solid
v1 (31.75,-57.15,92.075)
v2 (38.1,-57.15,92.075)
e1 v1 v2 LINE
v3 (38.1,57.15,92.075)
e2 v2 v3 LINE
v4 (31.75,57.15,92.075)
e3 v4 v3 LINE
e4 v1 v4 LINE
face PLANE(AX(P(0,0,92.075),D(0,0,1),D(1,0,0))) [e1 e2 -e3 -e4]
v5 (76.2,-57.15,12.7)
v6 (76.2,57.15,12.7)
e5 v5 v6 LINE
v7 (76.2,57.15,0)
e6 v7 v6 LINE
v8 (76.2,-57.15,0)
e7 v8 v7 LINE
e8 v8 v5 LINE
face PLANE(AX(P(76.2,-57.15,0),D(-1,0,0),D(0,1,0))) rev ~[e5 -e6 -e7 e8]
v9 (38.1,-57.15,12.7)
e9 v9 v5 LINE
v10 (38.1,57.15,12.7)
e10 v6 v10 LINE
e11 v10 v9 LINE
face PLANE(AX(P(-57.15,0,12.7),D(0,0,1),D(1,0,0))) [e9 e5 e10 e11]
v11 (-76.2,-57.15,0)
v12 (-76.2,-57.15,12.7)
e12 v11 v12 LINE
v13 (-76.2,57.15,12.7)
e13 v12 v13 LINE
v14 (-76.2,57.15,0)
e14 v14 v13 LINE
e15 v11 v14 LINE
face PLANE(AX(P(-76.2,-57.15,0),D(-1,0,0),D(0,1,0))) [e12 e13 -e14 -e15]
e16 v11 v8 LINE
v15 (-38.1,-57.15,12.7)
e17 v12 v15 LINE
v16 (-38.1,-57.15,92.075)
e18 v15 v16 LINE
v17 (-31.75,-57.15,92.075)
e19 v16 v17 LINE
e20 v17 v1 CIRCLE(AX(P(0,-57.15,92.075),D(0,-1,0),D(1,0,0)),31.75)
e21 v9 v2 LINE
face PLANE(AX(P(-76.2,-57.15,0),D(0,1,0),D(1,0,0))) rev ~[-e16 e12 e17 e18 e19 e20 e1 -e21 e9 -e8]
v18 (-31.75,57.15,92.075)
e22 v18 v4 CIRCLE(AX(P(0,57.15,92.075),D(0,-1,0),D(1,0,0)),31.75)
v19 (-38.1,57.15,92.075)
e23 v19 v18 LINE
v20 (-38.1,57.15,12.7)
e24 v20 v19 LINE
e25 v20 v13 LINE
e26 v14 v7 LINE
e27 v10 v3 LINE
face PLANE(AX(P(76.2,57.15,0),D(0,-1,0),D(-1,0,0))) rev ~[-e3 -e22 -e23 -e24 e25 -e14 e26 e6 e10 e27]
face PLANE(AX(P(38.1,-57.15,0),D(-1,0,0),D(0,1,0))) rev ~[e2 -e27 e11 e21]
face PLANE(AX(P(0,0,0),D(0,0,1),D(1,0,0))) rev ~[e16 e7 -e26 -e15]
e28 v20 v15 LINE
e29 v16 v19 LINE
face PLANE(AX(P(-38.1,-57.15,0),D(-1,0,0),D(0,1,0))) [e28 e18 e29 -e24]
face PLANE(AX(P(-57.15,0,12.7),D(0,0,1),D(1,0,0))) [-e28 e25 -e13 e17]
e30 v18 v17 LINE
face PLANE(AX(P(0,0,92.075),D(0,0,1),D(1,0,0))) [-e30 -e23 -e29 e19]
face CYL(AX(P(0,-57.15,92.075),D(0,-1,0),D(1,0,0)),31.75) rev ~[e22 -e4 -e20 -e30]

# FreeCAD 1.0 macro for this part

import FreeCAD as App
import Part
import Sketcher
Q = App.Units.Quantity


def add_polygon(sketch, points):
    """Adds a closed chain of lines whose ends are joined by coincident constraints."""
    first, n = sketch.GeometryCount, len(points)
    for a, b in zip(points, points[1:] + points[:1]):
        sketch.addGeometry(Part.LineSegment(App.Vector(*a, 0), App.Vector(*b, 0)), False)
    for i in range(n):
        sketch.addConstraint(Sketcher.Constraint("Coincident", first + i, 2, first + (i + 1) % n, 1))

doc = App.newDocument("Part")
body = doc.addObject("PartDesign::Body", "Body")

sketch1 = doc.addObject("Sketcher::SketchObject", "Sketch")
body.addObject(sketch1)
sketch1.AttachmentSupport = (doc.XY_Plane, [""])
sketch1.MapMode = "FlatFace"
add_polygon(sketch1, [(-76, 57), (-76, -57), (76, -57), (76, 57)])
sketch1.addConstraint([
    Sketcher.Constraint("Vertical", 0),
    Sketcher.Constraint("Horizontal", 1),
    Sketcher.Constraint("Vertical", 2),
    Sketcher.Constraint("Horizontal", 3),
    Sketcher.Constraint("Symmetric", 0, 2, 2, 2, -1, 1),
    Sketcher.Constraint("DistanceX", 1, 1, 1, 2, Q("6 in")),
    Sketcher.Constraint("DistanceY", 0, 2, 0, 1, Q("4.5 in")),
])
pad1 = doc.addObject("PartDesign::Pad", "Pad")
body.addObject(pad1)
pad1.Profile = sketch1
pad1.Length = Q("0.5 in")

sketch2 = doc.addObject("Sketcher::SketchObject", "Sketch001")
body.addObject(sketch2)
sketch2.AttachmentSupport = (doc.XY_Plane, [""])
sketch2.MapMode = "FlatFace"
add_polygon(sketch2, [(-38, 57), (-38, -57), (38, -57), (38, 57)])
sketch2.addConstraint([
    Sketcher.Constraint("Vertical", 0),
    Sketcher.Constraint("Horizontal", 1),
    Sketcher.Constraint("Vertical", 2),
    Sketcher.Constraint("Horizontal", 3),
    Sketcher.Constraint("Symmetric", 0, 2, 2, 2, -1, 1),
    Sketcher.Constraint("DistanceX", 1, 1, 1, 2, Q("3 in")),
    Sketcher.Constraint("DistanceY", 0, 2, 0, 1, Q("4.5 in")),
])
pad2 = doc.addObject("PartDesign::Pad", "Pad001")
body.addObject(pad2)
pad2.Profile = sketch2
pad2.Length = Q("3.625 in")

sketch3 = doc.addObject("Sketcher::SketchObject", "Sketch002")
body.addObject(sketch3)
sketch3.AttachmentSupport = (doc.XZ_Plane, [""])
sketch3.MapMode = "FlatFace"
sketch3.AttachmentOffset = App.Placement(App.Vector(0, 0, 2.25 * 25.4), App.Rotation())
sketch3.addGeometry(Part.Circle(App.Vector(0, 92, 0), App.Vector(0, 0, 1), 32), False)
sketch3.addConstraint([
    Sketcher.Constraint("PointOnObject", 0, 3, -2),
    Sketcher.Constraint("Diameter", 0, Q("2.5 in")),
    Sketcher.Constraint("DistanceY", -1, 1, 0, 3, Q("3.625 in")),
])
pocket1 = doc.addObject("PartDesign::Pocket", "Pocket")
body.addObject(pocket1)
pocket1.Profile = sketch3
pocket1.Length = Q("4.5 in")

doc.recompute()
